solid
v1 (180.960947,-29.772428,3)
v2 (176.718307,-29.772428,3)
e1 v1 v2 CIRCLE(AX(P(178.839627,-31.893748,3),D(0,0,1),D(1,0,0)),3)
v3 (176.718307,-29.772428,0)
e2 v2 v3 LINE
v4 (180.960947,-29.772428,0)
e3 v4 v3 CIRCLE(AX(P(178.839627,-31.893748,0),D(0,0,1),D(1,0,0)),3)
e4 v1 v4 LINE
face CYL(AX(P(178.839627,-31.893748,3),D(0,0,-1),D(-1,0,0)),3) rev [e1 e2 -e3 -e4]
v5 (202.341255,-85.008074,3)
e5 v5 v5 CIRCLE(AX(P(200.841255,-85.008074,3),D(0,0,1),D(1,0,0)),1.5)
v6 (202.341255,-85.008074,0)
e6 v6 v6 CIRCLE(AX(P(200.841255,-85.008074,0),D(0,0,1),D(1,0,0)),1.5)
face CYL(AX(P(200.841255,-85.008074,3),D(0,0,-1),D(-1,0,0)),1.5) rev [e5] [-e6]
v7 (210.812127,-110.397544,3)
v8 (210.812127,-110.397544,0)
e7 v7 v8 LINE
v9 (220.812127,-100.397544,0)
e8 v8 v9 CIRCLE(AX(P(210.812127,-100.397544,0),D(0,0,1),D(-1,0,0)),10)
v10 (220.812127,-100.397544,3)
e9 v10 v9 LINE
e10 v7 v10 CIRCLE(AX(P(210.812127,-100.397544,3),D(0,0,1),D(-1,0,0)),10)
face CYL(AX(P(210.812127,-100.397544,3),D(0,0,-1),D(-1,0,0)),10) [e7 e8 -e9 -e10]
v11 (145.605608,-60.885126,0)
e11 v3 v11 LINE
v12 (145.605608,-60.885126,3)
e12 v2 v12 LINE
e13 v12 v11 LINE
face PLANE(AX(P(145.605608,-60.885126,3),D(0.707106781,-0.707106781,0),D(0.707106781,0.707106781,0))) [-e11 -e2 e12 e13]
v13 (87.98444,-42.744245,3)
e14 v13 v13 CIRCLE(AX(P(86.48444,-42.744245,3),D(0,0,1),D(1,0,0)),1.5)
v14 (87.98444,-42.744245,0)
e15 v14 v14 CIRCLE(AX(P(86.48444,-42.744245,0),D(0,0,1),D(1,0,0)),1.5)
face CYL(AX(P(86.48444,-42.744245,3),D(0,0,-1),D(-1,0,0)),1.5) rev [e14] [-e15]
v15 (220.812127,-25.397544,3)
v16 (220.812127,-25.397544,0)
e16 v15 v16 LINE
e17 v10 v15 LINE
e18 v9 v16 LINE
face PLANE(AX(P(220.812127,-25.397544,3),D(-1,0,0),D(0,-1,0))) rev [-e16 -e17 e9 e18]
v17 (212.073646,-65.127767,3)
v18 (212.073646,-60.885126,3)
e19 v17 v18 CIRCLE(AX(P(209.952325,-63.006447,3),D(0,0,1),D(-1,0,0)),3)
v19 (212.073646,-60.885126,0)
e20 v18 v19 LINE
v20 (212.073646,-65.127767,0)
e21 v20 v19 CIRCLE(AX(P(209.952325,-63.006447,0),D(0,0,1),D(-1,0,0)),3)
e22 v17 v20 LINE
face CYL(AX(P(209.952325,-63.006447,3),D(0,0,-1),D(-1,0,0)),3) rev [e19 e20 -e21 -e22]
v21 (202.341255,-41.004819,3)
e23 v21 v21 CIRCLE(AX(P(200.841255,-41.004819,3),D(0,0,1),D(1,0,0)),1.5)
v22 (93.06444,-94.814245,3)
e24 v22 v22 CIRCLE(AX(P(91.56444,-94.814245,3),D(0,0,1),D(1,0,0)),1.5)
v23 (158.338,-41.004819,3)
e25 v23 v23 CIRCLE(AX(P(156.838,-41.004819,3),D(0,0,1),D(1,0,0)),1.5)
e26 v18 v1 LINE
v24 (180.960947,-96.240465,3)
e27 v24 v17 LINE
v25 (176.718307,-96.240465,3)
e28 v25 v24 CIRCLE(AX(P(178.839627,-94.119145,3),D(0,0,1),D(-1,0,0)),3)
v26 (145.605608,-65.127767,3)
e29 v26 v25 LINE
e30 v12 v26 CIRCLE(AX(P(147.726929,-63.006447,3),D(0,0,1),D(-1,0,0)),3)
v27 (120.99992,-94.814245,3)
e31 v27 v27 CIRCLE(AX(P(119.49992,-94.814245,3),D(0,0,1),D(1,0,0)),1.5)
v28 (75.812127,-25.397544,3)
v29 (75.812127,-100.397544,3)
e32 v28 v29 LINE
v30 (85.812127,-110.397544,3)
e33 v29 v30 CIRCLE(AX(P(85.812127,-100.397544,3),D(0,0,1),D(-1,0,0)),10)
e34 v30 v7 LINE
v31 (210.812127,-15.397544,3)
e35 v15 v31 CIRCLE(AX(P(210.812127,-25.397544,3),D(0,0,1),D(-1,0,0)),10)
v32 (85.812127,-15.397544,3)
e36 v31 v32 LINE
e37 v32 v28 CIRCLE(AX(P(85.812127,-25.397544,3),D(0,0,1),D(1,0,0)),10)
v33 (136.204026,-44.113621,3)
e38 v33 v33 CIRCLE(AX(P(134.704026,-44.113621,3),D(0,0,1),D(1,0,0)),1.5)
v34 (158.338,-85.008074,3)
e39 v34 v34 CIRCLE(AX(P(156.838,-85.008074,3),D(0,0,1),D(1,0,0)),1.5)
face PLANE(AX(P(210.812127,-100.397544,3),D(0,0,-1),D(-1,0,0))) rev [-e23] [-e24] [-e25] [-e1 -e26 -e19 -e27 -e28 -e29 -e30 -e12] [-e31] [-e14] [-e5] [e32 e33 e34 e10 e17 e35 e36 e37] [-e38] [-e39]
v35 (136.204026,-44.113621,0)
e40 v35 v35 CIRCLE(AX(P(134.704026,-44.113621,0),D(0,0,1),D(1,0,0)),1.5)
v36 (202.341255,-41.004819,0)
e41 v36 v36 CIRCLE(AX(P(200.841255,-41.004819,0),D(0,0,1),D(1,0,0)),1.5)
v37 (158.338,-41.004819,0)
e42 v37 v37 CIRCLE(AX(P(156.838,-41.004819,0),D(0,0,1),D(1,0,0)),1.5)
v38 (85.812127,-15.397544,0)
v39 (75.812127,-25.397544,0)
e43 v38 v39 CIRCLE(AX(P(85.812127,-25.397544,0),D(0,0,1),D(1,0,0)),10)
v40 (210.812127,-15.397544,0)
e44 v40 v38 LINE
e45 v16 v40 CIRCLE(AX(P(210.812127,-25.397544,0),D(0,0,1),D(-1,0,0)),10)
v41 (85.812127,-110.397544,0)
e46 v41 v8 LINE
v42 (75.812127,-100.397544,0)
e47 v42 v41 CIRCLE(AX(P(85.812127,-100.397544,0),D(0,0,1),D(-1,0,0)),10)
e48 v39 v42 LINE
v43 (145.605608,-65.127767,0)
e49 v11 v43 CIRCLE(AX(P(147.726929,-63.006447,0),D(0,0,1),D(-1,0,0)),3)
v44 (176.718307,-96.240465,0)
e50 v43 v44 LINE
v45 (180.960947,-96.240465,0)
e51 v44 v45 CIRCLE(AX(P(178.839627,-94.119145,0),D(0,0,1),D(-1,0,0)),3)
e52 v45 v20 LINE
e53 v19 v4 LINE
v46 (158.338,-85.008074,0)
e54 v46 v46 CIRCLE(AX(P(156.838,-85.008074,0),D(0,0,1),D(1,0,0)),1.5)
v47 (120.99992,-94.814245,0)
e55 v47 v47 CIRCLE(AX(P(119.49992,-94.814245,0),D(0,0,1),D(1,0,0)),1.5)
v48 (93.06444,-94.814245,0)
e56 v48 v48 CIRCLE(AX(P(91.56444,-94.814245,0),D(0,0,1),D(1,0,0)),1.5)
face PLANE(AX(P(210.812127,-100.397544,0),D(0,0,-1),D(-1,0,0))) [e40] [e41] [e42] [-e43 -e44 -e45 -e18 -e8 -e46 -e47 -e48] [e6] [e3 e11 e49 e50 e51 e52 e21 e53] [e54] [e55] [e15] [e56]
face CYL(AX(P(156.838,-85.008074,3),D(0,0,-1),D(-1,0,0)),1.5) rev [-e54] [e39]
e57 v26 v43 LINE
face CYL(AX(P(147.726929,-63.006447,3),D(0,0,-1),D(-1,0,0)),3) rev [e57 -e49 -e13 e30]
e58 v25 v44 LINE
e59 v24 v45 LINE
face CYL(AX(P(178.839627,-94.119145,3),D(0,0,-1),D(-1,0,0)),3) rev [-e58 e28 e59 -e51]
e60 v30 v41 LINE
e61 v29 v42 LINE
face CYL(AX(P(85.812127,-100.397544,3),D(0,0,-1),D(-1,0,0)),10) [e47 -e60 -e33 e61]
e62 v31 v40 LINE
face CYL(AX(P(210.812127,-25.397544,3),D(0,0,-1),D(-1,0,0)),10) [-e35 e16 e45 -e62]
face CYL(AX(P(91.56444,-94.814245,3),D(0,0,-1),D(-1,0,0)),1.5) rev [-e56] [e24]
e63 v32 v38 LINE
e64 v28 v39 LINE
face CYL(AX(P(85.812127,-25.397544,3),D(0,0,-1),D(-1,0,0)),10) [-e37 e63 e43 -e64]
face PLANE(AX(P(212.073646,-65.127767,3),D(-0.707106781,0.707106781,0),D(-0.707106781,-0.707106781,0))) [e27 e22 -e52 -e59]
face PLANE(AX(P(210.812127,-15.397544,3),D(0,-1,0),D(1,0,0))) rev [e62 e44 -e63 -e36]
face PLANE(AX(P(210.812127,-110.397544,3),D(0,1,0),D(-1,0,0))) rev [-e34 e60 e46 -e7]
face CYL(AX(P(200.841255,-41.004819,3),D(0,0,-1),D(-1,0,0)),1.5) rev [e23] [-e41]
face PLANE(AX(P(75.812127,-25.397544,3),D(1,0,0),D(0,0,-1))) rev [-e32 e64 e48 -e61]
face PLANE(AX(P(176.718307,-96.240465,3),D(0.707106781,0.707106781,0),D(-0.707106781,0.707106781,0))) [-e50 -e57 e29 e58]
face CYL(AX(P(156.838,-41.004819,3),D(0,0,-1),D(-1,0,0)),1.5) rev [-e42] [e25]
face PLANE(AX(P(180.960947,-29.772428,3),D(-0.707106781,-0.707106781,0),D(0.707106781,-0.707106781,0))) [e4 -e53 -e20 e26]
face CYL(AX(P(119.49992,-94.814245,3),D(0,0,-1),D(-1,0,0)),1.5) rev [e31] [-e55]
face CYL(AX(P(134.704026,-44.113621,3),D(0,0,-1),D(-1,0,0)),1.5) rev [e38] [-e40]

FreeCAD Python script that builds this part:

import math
import FreeCAD as App
import Part
import Sketcher

V = App.Vector

doc = App.newDocument("Part")
body = doc.addObject("PartDesign::Body", "Body")

sketch1 = doc.addObject("Sketcher::SketchObject", "Sketch")
body.addObject(sketch1)
sketch1.AttachmentSupport = (doc.XY_Plane, [""])
sketch1.MapMode = "FlatFace"
sketch1.addGeometry([
    Part.LineSegment(V(210.8, -15.4, 0), V(85.8, -15.4, 0)),
    Part.ArcOfCircle(Part.Circle(V(85.8, -25.4, 0), V(0, 0, 1), 10), math.radians(90), math.radians(180)),
    Part.LineSegment(V(75.8, -25.4, 0), V(75.8, -100.4, 0)),
    Part.ArcOfCircle(Part.Circle(V(85.8, -100.4, 0), V(0, 0, 1), 10), math.radians(-180), math.radians(-90)),
    Part.LineSegment(V(85.8, -110.4, 0), V(210.8, -110.4, 0)),
    Part.ArcOfCircle(Part.Circle(V(210.8, -100.4, 0), V(0, 0, 1), 10), math.radians(-90), math.radians(0)),
    Part.LineSegment(V(220.8, -100.4, 0), V(220.8, -25.4, 0)),
    Part.ArcOfCircle(Part.Circle(V(210.8, -25.4, 0), V(0, 0, 1), 10), math.radians(0), math.radians(90)),
    Part.Circle(V(91.6, -94.8, 0), V(0, 0, 1), 1.5),
    Part.Circle(V(119.5, -94.8, 0), V(0, 0, 1), 1.5),
    Part.Circle(V(156.8, -85, 0), V(0, 0, 1), 1.5),
    Part.Circle(V(200.8, -85, 0), V(0, 0, 1), 1.5),
    Part.Circle(V(86.5, -42.7, 0), V(0, 0, 1), 1.5),
    Part.Circle(V(134.7, -44.1, 0), V(0, 0, 1), 1.5),
    Part.ArcOfCircle(Part.Circle(V(178.8, -31.9, 0), V(0, 0, 1), 3), math.radians(45), math.radians(135)),
    Part.LineSegment(V(181, -29.8, 0), V(212.1, -60.9, 0)),
    Part.ArcOfCircle(Part.Circle(V(210, -63, 0), V(0, 0, 1), 3), math.radians(-45), math.radians(45)),
    Part.LineSegment(V(212.1, -65.1, 0), V(181, -96.2, 0)),
    Part.ArcOfCircle(Part.Circle(V(178.8, -94.1, 0), V(0, 0, 1), 3), math.radians(-135), math.radians(-45)),
    Part.LineSegment(V(176.7, -96.2, 0), V(145.6, -65.1, 0)),
    Part.ArcOfCircle(Part.Circle(V(147.7, -63, 0), V(0, 0, 1), 3), math.radians(135), math.radians(225)),
    Part.LineSegment(V(145.6, -60.9, 0), V(176.7, -29.8, 0)),
    Part.Circle(V(156.8, -41, 0), V(0, 0, 1), 1.5),
    Part.Circle(V(200.8, -41, 0), V(0, 0, 1), 1.5),
], False)
sketch1.addConstraint([
    Sketcher.Constraint("Tangent", 0, 2, 1, 1),
    Sketcher.Constraint("Tangent", 1, 2, 2, 1),
    Sketcher.Constraint("Tangent", 2, 2, 3, 1),
    Sketcher.Constraint("Tangent", 3, 2, 4, 1),
    Sketcher.Constraint("Tangent", 4, 2, 5, 1),
    Sketcher.Constraint("Tangent", 5, 2, 6, 1),
    Sketcher.Constraint("Tangent", 6, 2, 7, 1),
    Sketcher.Constraint("Tangent", 7, 2, 0, 1),
    Sketcher.Constraint("Tangent", 14, 1, 15, 1),
    Sketcher.Constraint("Tangent", 15, 2, 16, 2),
    Sketcher.Constraint("Tangent", 16, 1, 17, 1),
    Sketcher.Constraint("Tangent", 17, 2, 18, 2),
    Sketcher.Constraint("Tangent", 18, 1, 19, 1),
    Sketcher.Constraint("Tangent", 19, 2, 20, 2),
    Sketcher.Constraint("Tangent", 20, 1, 21, 1),
    Sketcher.Constraint("Tangent", 21, 2, 14, 2),
    Sketcher.Constraint("Horizontal", 0),
    Sketcher.Constraint("Vertical", 2),
    Sketcher.Constraint("Horizontal", 4),
    Sketcher.Constraint("Vertical", 6),
    Sketcher.Constraint("Equal", 1, 3),
    Sketcher.Constraint("Equal", 3, 5),
    Sketcher.Constraint("Equal", 5, 7),
    Sketcher.Constraint("Equal", 8, 9),
    Sketcher.Constraint("Equal", 9, 10),
    Sketcher.Constraint("Equal", 10, 11),
    Sketcher.Constraint("Equal", 11, 12),
    Sketcher.Constraint("Equal", 12, 13),
    Sketcher.Constraint("Equal", 14, 16),
    Sketcher.Constraint("Equal", 16, 18),
    Sketcher.Constraint("Equal", 18, 20),
    Sketcher.Constraint("Equal", 13, 22),
    Sketcher.Constraint("Equal", 22, 23),
    Sketcher.Constraint("Perpendicular", 15, 17),
    Sketcher.Constraint("Perpendicular", 17, 19),
    Sketcher.Constraint("Perpendicular", 19, 21),
    Sketcher.Constraint("Horizontal", 8, 3, 9, 3),
    Sketcher.Constraint("Horizontal", 10, 3, 11, 3),
    Sketcher.Constraint("Horizontal", 16, 3, 20, 3),
    Sketcher.Constraint("Horizontal", 22, 3, 23, 3),
    Sketcher.Constraint("Horizontal", 17, 2, 18, 1),
    Sketcher.Constraint("Vertical", 10, 3, 22, 3),
    Sketcher.Constraint("Vertical", 11, 3, 23, 3),
    Sketcher.Constraint("Diameter", 8, 3.0),
    Sketcher.Constraint("Radius", 1, 10.0),
    Sketcher.Constraint("Radius", 14, 3.0),
    Sketcher.Constraint("DistanceX", 0, 2, 0, 1, 125.0),
    Sketcher.Constraint("DistanceY", 2, 2, 2, 1, 75.0),
    Sketcher.Constraint("Distance", 15, 44.0),
    Sketcher.Constraint("DistanceX", 12, 3, 8, 3, 5.08),
    Sketcher.Constraint("DistanceY", 8, 3, 12, 3, 52.07),
    Sketcher.Constraint("DistanceX", -1, 1, 10, 3, 156.838),
    Sketcher.Constraint("DistanceY", 3, 3, 8, 3, 5.583299),
    Sketcher.Constraint("DistanceX", 1, 3, 13, 3, 48.891898),
    Sketcher.Constraint("DistanceX", 14, 3, 7, 3, 31.9725),
    Sketcher.Constraint("DistanceY", 5, 3, 18, 3, 6.278399),
    Sketcher.Constraint("DistanceY", 13, 3, 22, 3, 3.108802),
    Sketcher.Constraint("DistanceX", -1, 1, 8, 3, 91.56444),
    Sketcher.Constraint("DistanceX", -1, 1, 9, 3, 119.49992),
    Sketcher.Constraint("DistanceY", 13, 3, -1, 1, 44.113621),
    Sketcher.Constraint("DistanceY", 14, 3, -1, 1, 31.893748),
    Sketcher.Constraint("DistanceX", -1, 1, 20, 3, 147.726929),
    Sketcher.Constraint("DistanceY", 9, 3, 10, 3, 9.806171),
    Sketcher.Constraint("DistanceX", 11, 3, 16, 3, 9.111071),
])
pad1 = doc.addObject("PartDesign::Pad", "Pad")
body.addObject(pad1)
pad1.Profile = sketch1
pad1.Length = 3

doc.recompute()
